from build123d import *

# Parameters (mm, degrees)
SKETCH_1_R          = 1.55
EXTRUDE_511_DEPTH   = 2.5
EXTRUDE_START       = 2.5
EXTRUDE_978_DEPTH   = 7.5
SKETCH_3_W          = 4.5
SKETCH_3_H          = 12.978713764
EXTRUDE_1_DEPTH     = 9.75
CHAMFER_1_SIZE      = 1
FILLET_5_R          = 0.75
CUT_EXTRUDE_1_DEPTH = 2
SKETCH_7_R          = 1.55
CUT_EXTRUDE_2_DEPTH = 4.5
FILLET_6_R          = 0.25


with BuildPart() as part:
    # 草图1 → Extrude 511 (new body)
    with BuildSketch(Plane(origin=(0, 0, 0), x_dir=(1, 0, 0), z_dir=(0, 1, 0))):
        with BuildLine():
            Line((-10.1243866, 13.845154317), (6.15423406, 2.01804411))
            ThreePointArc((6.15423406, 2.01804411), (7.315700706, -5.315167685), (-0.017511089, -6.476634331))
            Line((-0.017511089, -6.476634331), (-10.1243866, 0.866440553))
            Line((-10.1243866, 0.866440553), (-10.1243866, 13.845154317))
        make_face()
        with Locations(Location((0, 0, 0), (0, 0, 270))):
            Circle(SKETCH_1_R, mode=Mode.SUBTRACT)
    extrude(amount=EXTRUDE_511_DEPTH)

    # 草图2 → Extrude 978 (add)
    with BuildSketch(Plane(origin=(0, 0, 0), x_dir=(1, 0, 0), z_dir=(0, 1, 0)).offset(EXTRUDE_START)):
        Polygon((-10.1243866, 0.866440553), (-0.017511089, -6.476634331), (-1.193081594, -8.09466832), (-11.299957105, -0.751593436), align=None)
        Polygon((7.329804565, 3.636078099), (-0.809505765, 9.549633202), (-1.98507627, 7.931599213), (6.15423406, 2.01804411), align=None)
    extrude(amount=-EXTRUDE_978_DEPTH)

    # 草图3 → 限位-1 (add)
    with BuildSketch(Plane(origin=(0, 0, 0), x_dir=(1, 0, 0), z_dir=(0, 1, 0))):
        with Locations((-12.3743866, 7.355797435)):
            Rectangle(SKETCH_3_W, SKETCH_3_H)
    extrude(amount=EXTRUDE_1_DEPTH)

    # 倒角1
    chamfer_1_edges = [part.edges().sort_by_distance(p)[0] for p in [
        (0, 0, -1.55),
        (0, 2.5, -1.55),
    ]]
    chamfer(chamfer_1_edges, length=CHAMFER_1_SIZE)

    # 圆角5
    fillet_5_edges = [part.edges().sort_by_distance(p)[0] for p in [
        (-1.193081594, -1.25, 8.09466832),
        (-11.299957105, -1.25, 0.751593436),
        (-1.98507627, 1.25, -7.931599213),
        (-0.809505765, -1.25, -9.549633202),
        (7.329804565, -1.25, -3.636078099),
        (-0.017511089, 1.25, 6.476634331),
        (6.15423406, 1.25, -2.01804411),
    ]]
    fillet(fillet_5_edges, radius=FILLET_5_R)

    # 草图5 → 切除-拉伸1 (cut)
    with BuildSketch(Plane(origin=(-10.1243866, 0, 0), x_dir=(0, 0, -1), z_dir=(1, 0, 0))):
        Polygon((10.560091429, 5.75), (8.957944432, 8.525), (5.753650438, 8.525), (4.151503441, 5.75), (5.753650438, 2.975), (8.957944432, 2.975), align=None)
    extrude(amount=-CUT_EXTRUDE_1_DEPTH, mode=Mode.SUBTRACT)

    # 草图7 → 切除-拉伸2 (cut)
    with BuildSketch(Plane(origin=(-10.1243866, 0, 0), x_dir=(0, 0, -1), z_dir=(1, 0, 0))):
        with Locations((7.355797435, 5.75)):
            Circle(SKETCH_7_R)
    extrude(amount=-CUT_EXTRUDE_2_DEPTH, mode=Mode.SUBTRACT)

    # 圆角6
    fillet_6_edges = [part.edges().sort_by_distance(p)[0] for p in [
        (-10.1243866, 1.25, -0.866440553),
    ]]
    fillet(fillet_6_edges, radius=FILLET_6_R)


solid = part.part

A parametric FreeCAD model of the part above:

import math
import FreeCAD as App
import Part
import Sketcher
Q = App.Units.Quantity


def edges_at(feature, points):
    """Names of the edges that pass closest to the given points."""
    edges = feature.Shape.Edges
    near = lambda p: min(range(len(edges)), key=lambda i: edges[i].distToShape(Part.Vertex(*p))[0])
    return sorted({f"Edge{near(p) + 1}" for p in points})


def add_polygon(sketch, points):
    """Adds a closed chain of lines whose ends are joined by coincident constraints."""
    first, n = sketch.GeometryCount, len(points)
    for a, b in zip(points, points[1:] + points[:1]):
        sketch.addGeometry(Part.LineSegment(App.Vector(*a, 0), App.Vector(*b, 0)), False)
    for i in range(n):
        sketch.addConstraint(Sketcher.Constraint("Coincident", first + i, 2, first + (i + 1) % n, 1))

doc = App.newDocument("Part")
body = doc.addObject("PartDesign::Body", "Body")

sketch1 = body.newObject("Sketcher::SketchObject", "Sketch")
sketch1.AttachmentSupport = (doc.getObject("XZ_Plane"), [""])
sketch1.MapMode = "FlatFace"
sketch1.addGeometry([
    Part.LineSegment(App.Vector(6.2, -2, 0), App.Vector(-10.1, -13.8, 0)),
    Part.LineSegment(App.Vector(-10.1, -13.8, 0), App.Vector(-10.1, -0.9, 0)),
    Part.LineSegment(App.Vector(-10.1, -0.9, 0), App.Vector(0, 6.5, 0)),
    Part.ArcOfCircle(Part.Circle(App.Vector(3.1, 2.2, 0), App.Vector(0, 0, 1), 5.2), math.radians(-54), math.radians(126)),
    Part.Circle(App.Vector(0, 0, 0), App.Vector(0, 0, 1), 1.6),
], False)
sketch1.addConstraint([
    Sketcher.Constraint("Coincident", 0, 2, 1, 1),
    Sketcher.Constraint("Coincident", 1, 2, 2, 1),
    Sketcher.Constraint("Tangent", 2, 2, 3, 2),
    Sketcher.Constraint("Tangent", 3, 1, 0, 1),
    Sketcher.Constraint("Vertical", 1),
    Sketcher.Constraint("Coincident", 4, 3, -1, 1),
    Sketcher.Constraint("Parallel", 0, 2),
    Sketcher.Constraint("Diameter", 4, Q("3.1 mm")),
    Sketcher.Constraint("Angle", 0, Q("-144 deg")),
    Sketcher.Constraint("Radius", 3, Q("5.25 mm")),
    Sketcher.Constraint("Distance", 0, Q("20.121482 mm")),
    Sketcher.Constraint("DistanceX", -1, 1, 3, 3, Q("3.068361 mm")),
    Sketcher.Constraint("DistanceY", 1, 2, -1, 1, Q("0.866441 mm")),
])
pad1 = body.newObject("PartDesign::Pad", "Pad")
pad1.Profile = sketch1
pad1.Length = 2.5
pad1.Reversed = True

sketch2 = body.newObject("Sketcher::SketchObject", "Sketch001")
sketch2.AttachmentSupport = (doc.getObject("XZ_Plane"), [""])
sketch2.MapMode = "FlatFace"
sketch2.AttachmentOffset = App.Placement(App.Vector(0, 0, -2.5), App.Rotation())
add_polygon(sketch2, [(0, 6.5), (-10.1, -0.9), (-11.3, 0.8), (-1.2, 8.1)])
add_polygon(sketch2, [(7.3, -3.6), (-0.8, -9.5), (-2, -7.9), (6.2, -2)])
sketch2.addConstraint([
    Sketcher.Constraint("Perpendicular", 0, 1),
    Sketcher.Constraint("Perpendicular", 1, 2),
    Sketcher.Constraint("Perpendicular", 2, 3),
    Sketcher.Constraint("Perpendicular", 3, 4),
    Sketcher.Constraint("Perpendicular", 4, 5),
    Sketcher.Constraint("Perpendicular", 5, 6),
    Sketcher.Constraint("Perpendicular", 6, 7),
    Sketcher.Constraint("Equal", 3, 5),
    Sketcher.Constraint("Angle", 0, Q("-144 deg")),
    Sketcher.Constraint("Distance", 1, Q("2 mm")),
    Sketcher.Constraint("DistanceY", 5, 2, -1, 1, Q("7.931599 mm")),
    Sketcher.Constraint("DistanceY", 4, 2, 2, 2, Q("17.644302 mm")),
    Sketcher.Constraint("Distance", 4, Q("10.060741 mm")),
    Sketcher.Constraint("DistanceY", 0, 2, -1, 1, Q("0.866441 mm")),
    Sketcher.Constraint("DistanceX", 2, 2, -1, 1, Q("1.193082 mm")),
    Sketcher.Constraint("DistanceX", 0, 2, 4, 2, Q("9.314881 mm")),
])
pad2 = body.newObject("PartDesign::Pad", "Pad001")
pad2.Profile = sketch2
pad2.Length = 7.5

sketch3 = body.newObject("Sketcher::SketchObject", "Sketch002")
sketch3.AttachmentSupport = (doc.getObject("XZ_Plane"), [""])
sketch3.MapMode = "FlatFace"
add_polygon(sketch3, [(-14.6, -13.8), (-14.6, -0.9), (-10.1, -0.9), (-10.1, -13.8)])
sketch3.addConstraint([
    Sketcher.Constraint("Vertical", 0),
    Sketcher.Constraint("Horizontal", 1),
    Sketcher.Constraint("Vertical", 2),
    Sketcher.Constraint("Horizontal", 3),
    Sketcher.Constraint("DistanceX", 1, 1, 1, 2, Q("4.5 mm")),
    Sketcher.Constraint("DistanceY", 0, 1, 0, 2, Q("12.978714 mm")),
    Sketcher.Constraint("DistanceY", 0, 2, -1, 1, Q("0.866441 mm")),
    Sketcher.Constraint("DistanceX", 0, 2, -1, 1, Q("14.624387 mm")),
])
pad3 = body.newObject("PartDesign::Pad", "Pad002")
pad3.Profile = sketch3
pad3.Length = 9.75
pad3.Reversed = True
doc.recompute()

chamfer = body.newObject("PartDesign::Chamfer", "Chamfer")
chamfer.Base = (pad3, edges_at(pad3, [(0, 0, -1.55), (0, 2.5, -1.55)]))
chamfer.Size = 1
doc.recompute()

fillet = body.newObject("PartDesign::Fillet", "Fillet")
fillet.Base = (chamfer, edges_at(chamfer, [
    (-1.193, -1.25, 8.095),
    (-11.3, -1.25, 0.752),
    (-1.985, 1.25, -7.932),
    (-0.81, -1.25, -9.55),
    (7.33, -1.25, -3.636),
    (-0.018, 1.25, 6.477),
    (6.154, 1.25, -2.018),
]))
fillet.Radius = 0.75

sketch4 = body.newObject("Sketcher::SketchObject", "Sketch003")
sketch4.AttachmentSupport = (doc.getObject("YZ_Plane"), [""])
sketch4.MapMode = "FlatFace"
sketch4.AttachmentOffset = App.Placement(App.Vector(0, 0, -10.124387), App.Rotation())
add_polygon(sketch4, [(5.8, -10.6), (8.5, -9), (8.5, -5.8), (5.8, -4.2), (3, -5.8), (3, -9)])
sketch4.addConstraint([
    Sketcher.Constraint("Vertical", 1),
    Sketcher.Constraint("Vertical", 4),
    Sketcher.Constraint("Parallel", 0, 3),
    Sketcher.Constraint("Parallel", 2, 5),
    Sketcher.Constraint("Horizontal", 1, 2, 3, 2),
    Sketcher.Constraint("Horizontal", 0, 2, 4, 2),
    Sketcher.Constraint("Vertical", 2, 2, 5, 2),
    Sketcher.Constraint("Angle", 0, Q("30 deg")),
    Sketcher.Constraint("DistanceX", -1, 1, 2, 2, Q("5.75 mm")),
    Sketcher.Constraint("DistanceX", 3, 2, 1, 2, Q("5.55 mm")),
    Sketcher.Constraint("DistanceY", 1, 1, 1, 2, Q("3.204294 mm")),
    Sketcher.Constraint("DistanceY", 1, 2, -1, 1, Q("5.75365 mm")),
])
pocket1 = body.newObject("PartDesign::Pocket", "Pocket")
pocket1.Profile = sketch4
pocket1.Length = 2

sketch5 = body.newObject("Sketcher::SketchObject", "Sketch004")
sketch5.AttachmentSupport = (doc.getObject("YZ_Plane"), [""])
sketch5.MapMode = "FlatFace"
sketch5.AttachmentOffset = App.Placement(App.Vector(0, 0, -10.124387), App.Rotation())
sketch5.addGeometry(Part.Circle(App.Vector(5.8, -7.4, 0), App.Vector(0, 0, 1), 1.6), False)
sketch5.addConstraint([
    Sketcher.Constraint("Diameter", 0, Q("3.1 mm")),
    Sketcher.Constraint("DistanceX", -1, 1, 0, 3, Q("5.75 mm")),
    Sketcher.Constraint("DistanceY", 0, 3, -1, 1, Q("7.355797 mm")),
])
pocket2 = body.newObject("PartDesign::Pocket", "Pocket001")
pocket2.Profile = sketch5
pocket2.Length = 4.5
doc.recompute()

fillet2 = body.newObject("PartDesign::Fillet", "Fillet001")
fillet2.Base = (pocket2, edges_at(pocket2, [(-10.124, 1.25, -0.866)]))
fillet2.Radius = 0.25

doc.recompute()
